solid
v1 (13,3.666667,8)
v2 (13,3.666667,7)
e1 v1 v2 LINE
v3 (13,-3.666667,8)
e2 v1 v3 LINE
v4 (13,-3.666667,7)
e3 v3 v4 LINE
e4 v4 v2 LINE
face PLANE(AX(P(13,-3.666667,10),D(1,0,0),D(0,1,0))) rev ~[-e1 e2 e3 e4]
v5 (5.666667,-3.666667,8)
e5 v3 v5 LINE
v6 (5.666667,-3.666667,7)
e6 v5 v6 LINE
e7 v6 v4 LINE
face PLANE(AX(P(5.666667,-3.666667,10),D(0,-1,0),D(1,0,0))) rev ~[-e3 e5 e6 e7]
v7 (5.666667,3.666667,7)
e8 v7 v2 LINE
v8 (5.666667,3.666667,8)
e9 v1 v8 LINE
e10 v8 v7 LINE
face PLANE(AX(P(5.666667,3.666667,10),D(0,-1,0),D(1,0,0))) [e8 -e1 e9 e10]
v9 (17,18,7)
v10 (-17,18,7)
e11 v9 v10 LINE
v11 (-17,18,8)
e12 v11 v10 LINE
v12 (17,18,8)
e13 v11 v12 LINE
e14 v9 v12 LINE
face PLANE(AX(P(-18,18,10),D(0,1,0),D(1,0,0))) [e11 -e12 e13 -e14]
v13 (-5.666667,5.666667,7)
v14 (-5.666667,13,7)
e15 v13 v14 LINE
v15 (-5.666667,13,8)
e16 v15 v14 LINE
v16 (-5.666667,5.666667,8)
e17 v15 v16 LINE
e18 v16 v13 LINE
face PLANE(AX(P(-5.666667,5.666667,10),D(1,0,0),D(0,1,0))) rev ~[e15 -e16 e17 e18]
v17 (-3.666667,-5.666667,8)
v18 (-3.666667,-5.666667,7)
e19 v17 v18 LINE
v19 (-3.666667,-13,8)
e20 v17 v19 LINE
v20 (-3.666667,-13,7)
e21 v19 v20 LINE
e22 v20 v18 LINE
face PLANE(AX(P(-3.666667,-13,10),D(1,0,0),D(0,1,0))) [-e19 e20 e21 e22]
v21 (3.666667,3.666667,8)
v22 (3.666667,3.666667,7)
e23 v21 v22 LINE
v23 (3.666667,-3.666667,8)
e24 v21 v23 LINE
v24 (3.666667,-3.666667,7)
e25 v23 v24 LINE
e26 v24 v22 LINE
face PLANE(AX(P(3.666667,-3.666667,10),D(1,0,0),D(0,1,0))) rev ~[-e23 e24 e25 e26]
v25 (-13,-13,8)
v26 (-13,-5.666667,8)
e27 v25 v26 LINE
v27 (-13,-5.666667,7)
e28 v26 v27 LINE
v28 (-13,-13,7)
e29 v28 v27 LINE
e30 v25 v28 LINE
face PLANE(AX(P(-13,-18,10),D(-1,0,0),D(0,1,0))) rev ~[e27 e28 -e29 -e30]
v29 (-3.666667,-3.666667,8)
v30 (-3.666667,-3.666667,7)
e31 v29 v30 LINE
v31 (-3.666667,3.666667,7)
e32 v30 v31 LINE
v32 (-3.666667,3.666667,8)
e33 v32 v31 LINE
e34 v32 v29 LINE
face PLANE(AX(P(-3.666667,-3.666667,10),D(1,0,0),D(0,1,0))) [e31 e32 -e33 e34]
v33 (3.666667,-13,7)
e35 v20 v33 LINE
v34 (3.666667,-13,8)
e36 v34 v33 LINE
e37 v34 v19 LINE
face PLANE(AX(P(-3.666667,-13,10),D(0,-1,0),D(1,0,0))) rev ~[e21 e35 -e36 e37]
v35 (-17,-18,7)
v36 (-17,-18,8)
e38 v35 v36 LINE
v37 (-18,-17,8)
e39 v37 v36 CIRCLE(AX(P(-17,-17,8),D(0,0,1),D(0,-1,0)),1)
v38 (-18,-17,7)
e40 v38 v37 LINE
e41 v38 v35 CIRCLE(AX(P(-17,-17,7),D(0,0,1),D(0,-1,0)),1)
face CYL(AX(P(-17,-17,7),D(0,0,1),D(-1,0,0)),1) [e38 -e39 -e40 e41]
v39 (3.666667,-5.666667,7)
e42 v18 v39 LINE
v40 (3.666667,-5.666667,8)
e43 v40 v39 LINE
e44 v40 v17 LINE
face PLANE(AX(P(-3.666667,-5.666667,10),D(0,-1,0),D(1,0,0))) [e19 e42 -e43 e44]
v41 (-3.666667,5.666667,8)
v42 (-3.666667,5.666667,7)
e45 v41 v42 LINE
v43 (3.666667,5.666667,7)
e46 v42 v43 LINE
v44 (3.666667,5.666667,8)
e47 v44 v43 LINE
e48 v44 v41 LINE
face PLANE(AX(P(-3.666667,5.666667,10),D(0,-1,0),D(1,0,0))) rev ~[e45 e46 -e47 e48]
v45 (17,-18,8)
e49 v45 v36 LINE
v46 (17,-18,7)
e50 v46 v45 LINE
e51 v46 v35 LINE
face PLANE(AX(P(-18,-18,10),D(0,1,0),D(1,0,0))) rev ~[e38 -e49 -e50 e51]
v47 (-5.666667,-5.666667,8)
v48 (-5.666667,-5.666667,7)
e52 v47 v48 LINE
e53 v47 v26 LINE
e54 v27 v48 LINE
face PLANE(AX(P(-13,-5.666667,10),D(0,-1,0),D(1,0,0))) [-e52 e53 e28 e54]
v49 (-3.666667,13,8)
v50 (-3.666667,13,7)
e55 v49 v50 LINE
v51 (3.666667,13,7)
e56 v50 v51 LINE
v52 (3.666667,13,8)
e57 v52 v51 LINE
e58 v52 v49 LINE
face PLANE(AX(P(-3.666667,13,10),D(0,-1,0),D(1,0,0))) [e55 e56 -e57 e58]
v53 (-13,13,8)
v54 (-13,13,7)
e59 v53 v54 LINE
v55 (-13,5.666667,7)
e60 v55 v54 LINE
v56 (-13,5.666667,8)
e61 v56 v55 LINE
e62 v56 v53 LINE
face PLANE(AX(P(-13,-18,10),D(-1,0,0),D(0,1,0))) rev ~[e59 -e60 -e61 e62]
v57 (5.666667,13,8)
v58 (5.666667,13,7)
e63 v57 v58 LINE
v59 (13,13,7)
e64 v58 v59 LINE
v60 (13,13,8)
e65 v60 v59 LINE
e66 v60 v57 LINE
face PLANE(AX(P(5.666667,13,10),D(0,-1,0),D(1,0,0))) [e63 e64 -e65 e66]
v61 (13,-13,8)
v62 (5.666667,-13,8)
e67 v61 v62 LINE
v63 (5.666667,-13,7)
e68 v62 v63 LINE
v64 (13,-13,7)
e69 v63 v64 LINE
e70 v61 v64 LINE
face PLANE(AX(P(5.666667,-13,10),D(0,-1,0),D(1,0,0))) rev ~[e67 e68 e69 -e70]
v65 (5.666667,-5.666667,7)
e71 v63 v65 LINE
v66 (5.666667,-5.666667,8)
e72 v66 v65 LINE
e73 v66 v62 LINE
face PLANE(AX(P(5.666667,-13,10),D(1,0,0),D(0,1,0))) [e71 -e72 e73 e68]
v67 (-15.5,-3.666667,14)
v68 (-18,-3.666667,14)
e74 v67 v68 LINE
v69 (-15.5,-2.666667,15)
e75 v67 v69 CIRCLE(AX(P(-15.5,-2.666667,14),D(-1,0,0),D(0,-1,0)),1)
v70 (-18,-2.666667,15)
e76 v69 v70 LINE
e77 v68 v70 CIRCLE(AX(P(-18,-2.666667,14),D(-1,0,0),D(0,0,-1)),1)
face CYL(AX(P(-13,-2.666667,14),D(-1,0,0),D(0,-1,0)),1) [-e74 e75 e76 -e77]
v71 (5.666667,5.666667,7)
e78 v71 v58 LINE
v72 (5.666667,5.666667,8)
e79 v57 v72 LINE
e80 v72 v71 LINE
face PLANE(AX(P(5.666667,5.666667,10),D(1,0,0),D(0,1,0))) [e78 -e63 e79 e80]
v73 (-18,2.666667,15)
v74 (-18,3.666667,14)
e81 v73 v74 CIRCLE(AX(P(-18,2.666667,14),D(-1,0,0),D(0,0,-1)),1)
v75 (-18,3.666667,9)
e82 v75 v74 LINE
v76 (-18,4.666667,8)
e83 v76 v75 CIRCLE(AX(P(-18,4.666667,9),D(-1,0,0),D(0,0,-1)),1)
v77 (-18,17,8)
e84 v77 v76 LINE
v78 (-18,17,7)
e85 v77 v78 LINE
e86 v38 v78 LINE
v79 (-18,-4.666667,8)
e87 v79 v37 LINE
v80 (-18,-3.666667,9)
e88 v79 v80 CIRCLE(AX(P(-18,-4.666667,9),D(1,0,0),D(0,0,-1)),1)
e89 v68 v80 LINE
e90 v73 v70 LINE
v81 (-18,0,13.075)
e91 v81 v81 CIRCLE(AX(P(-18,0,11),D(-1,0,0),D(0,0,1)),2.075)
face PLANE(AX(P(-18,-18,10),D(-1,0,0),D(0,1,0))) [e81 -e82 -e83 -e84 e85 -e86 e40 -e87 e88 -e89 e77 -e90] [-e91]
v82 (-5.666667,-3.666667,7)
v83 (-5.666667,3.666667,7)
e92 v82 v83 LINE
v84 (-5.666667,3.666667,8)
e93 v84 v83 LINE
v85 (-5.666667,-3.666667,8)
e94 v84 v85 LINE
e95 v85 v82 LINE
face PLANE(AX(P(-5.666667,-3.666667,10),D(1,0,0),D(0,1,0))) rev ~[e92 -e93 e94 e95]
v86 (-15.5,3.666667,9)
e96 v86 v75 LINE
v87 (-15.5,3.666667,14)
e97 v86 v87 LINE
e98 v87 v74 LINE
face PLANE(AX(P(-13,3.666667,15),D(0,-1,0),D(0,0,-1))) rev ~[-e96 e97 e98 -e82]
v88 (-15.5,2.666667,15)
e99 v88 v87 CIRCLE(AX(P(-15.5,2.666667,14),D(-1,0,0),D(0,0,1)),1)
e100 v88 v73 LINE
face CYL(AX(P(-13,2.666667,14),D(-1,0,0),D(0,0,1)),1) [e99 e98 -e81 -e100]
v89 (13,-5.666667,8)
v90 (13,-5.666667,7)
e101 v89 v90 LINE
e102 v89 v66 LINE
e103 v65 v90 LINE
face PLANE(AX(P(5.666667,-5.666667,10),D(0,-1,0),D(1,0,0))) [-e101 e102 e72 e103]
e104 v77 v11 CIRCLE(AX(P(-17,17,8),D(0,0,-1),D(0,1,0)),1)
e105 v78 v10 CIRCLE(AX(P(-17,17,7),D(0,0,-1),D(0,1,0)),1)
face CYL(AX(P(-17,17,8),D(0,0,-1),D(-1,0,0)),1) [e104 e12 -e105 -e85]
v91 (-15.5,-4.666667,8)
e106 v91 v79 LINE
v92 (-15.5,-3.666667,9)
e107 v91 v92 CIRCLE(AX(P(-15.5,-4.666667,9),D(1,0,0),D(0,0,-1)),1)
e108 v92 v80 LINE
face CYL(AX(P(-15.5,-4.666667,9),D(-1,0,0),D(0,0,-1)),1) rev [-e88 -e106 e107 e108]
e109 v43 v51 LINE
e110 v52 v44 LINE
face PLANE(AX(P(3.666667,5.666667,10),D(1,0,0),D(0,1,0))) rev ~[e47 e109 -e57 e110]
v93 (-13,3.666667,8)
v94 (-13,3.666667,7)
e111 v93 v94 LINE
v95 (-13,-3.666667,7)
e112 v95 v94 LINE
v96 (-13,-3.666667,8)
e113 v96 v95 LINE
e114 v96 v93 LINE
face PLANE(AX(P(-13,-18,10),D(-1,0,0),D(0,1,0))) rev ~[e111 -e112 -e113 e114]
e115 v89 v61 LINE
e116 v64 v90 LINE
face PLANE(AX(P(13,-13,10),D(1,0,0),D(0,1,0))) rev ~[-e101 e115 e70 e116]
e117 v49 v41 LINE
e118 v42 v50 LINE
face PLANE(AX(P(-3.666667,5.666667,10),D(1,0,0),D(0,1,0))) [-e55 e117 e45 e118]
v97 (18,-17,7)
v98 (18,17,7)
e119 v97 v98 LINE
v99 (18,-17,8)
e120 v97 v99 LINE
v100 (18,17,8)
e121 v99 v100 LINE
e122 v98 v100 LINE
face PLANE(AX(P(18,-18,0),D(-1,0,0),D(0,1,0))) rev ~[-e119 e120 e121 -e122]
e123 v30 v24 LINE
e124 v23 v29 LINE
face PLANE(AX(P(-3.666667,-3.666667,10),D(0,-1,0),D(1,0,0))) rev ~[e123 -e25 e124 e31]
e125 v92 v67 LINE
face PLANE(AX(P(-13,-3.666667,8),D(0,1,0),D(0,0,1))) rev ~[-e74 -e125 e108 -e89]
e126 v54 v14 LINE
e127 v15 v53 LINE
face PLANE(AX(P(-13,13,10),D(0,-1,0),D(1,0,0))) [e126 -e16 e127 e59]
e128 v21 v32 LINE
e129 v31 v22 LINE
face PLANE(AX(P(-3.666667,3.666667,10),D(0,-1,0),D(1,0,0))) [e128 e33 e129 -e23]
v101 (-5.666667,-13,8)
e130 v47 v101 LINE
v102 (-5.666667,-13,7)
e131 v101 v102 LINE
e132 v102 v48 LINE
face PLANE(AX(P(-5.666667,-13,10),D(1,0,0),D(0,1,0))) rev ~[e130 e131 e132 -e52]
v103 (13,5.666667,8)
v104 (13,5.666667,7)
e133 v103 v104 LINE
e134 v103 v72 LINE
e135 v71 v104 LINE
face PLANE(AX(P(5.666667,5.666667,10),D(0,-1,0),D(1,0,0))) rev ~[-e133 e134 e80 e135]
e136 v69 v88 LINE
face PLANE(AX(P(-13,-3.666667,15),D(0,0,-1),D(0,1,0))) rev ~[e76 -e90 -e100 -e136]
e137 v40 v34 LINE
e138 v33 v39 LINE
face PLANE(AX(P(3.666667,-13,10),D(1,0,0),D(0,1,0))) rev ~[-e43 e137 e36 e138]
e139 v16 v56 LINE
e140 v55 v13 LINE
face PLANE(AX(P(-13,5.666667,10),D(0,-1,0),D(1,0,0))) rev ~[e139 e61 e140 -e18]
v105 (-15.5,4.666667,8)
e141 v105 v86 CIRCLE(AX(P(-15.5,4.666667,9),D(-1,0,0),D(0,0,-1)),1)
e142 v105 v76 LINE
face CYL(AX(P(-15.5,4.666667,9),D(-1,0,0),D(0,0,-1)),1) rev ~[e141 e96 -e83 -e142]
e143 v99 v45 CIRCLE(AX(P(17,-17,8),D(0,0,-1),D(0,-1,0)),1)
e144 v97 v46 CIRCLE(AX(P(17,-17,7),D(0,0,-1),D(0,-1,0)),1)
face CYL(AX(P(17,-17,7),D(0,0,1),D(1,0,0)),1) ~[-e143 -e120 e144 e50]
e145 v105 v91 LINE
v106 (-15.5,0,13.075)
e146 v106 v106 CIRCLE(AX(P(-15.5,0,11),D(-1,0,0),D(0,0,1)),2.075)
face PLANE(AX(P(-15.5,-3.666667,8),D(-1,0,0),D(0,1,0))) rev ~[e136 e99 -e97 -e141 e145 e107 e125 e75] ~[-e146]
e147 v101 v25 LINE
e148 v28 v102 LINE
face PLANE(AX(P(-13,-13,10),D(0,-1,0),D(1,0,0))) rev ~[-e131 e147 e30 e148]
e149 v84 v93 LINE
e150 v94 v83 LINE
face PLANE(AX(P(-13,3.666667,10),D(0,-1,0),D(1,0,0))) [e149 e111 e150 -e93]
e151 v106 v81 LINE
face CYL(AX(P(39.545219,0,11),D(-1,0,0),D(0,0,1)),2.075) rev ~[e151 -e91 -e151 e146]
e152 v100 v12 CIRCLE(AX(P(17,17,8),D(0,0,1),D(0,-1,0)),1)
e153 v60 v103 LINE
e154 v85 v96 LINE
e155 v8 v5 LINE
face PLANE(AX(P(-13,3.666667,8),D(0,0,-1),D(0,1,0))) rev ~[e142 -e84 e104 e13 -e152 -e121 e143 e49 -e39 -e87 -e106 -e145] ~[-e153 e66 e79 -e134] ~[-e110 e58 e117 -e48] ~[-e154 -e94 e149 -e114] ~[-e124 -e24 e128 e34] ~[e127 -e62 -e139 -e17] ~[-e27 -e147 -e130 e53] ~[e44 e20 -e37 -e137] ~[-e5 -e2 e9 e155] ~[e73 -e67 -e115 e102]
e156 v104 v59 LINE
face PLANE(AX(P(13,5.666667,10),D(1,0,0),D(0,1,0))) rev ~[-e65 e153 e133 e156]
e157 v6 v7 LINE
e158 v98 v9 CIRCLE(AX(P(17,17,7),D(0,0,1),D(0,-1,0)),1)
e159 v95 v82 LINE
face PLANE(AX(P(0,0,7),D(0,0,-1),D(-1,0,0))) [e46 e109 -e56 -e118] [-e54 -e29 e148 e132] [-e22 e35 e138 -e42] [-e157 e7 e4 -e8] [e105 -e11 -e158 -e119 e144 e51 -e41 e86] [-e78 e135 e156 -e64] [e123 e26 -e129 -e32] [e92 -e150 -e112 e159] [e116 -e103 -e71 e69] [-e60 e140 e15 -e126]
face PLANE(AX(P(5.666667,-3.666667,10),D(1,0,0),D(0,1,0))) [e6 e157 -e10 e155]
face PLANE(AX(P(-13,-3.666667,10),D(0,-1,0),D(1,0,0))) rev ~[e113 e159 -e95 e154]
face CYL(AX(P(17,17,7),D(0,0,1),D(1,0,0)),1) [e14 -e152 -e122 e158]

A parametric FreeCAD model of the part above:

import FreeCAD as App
import Part
import Sketcher

V = App.Vector
Q = App.Units.Quantity


def edges_at(feature, points):
    """Names of the edges that pass closest to the given points."""
    edges = feature.Shape.Edges
    near = lambda p: min(range(len(edges)), key=lambda i: edges[i].distToShape(Part.Vertex(*p))[0])
    return sorted({f"Edge{near(p) + 1}" for p in points})


def add_polygon(sketch, points):
    """Adds a closed chain of lines whose ends are joined by coincident constraints."""
    first, n = sketch.GeometryCount, len(points)
    for a, b in zip(points, points[1:] + points[:1]):
        sketch.addGeometry(Part.LineSegment(App.Vector(*a, 0), App.Vector(*b, 0)), False)
    for i in range(n):
        sketch.addConstraint(Sketcher.Constraint("Coincident", first + i, 2, first + (i + 1) % n, 1))

doc = App.newDocument("Part")
params = doc.addObject("Spreadsheet::Sheet", "Params")
for row, (alias, value) in enumerate([
    ("sketch1_width", "36 mm"),
    ("pad1_length", "10 mm"),
    ("sketch3_width", "36 mm"),
    ("pocket2_length", "7 mm"),
    ("pocket3_length", "2 mm"),
    ("sketch5_width", "5 mm"),
    ("sketch5_height", "36 mm"),
    ("pad2_length", "10 mm"),
    ("sketch6_diameter", "4.15 mm"),
    ("hole_diameter", "4.15 mm"),
    ("sketch7_width", "36 mm"),
    ("sketch7_height", "7 mm"),
    ("sketch7_height2", "12 mm"),
    ("fillet_radius", "1 mm"),
    ("sketch8_width", "2.5 mm"),
    ("pocket5_length", "7 mm"),
    ("fillet2_radius", "1 mm"),
], start=1):
    params.set(f"A{row}", alias)
    params.set(f"B{row}", "=" + value)
    params.setAlias(f"B{row}", alias)

body = doc.addObject("PartDesign::Body", "Body")

sketch1 = body.newObject("Sketcher::SketchObject", "Sketch")
sketch1.AttachmentSupport = (doc.getObject("XY_Plane"), [""])
sketch1.MapMode = "FlatFace"
add_polygon(sketch1, [(-18, 18), (-18, -18), (18, -18), (18, 18)])
sketch1.addConstraint([
    Sketcher.Constraint("Vertical", 0),
    Sketcher.Constraint("Horizontal", 1),
    Sketcher.Constraint("Vertical", 2),
    Sketcher.Constraint("Horizontal", 3),
    Sketcher.Constraint("Symmetric", 0, 2, 2, 2, -1, 1),
    Sketcher.Constraint("Equal", 3, 0),
    Sketcher.Constraint("DistanceX", 1, 1, 1, 2, Q("36 mm")),
])
sketch1.setExpression("Constraints[10]", "Params.sketch1_width")
pad1 = body.newObject("PartDesign::Pad", "Pad")
pad1.Profile = sketch1
pad1.setExpression("Length", "Params.pad1_length")

sketch2 = body.newObject("Sketcher::SketchObject", "Sketch001")
sketch2.AttachmentSupport = (doc.getObject("XY_Plane"), [""])
sketch2.MapMode = "FlatFace"
sketch2.AttachmentOffset = App.Placement(V(0, 0, 10), App.Rotation())
add_polygon(sketch2, [(-13, 13), (-13, 5.666667), (-5.666667, 5.666667), (-5.666667, 13)])
add_polygon(sketch2, [(-13, 3.666667), (-13, -3.666667), (-5.666667, -3.666667), (-5.666667, 3.666667)])
add_polygon(sketch2, [(-3.666667, 13), (-3.666667, 5.666667), (3.666667, 5.666667), (3.666667, 13)])
add_polygon(sketch2, [(-3.666667, 3.666667), (-3.666667, -3.666667), (3.666667, -3.666667), (3.666667, 3.666667)])
add_polygon(sketch2, [(5.666667, 13), (5.666667, 5.666667), (13, 5.666667), (13, 13)])
add_polygon(sketch2, [(5.666667, 3.666667), (5.666667, -3.666667), (13, -3.666667), (13, 3.666667)])
add_polygon(sketch2, [(5.666667, -5.666667), (5.666667, -13), (13, -13), (13, -5.666667)])
add_polygon(sketch2, [(-3.666667, -5.666667), (-3.666667, -13), (3.666667, -13), (3.666667, -5.666667)])
add_polygon(sketch2, [(-13, -5.666667), (-13, -13), (-5.666667, -13), (-5.666667, -5.666667)])
sketch2.addConstraint([
    Sketcher.Constraint("Vertical", 0),
    Sketcher.Constraint("Horizontal", 1),
    Sketcher.Constraint("Vertical", 2),
    Sketcher.Constraint("Horizontal", 3),
    Sketcher.Constraint("Vertical", 4),
    Sketcher.Constraint("Horizontal", 5),
    Sketcher.Constraint("Vertical", 6),
    Sketcher.Constraint("Horizontal", 7),
    Sketcher.Constraint("Vertical", 8),
    Sketcher.Constraint("Horizontal", 9),
    Sketcher.Constraint("Vertical", 10),
    Sketcher.Constraint("Horizontal", 11),
    Sketcher.Constraint("Vertical", 12),
    Sketcher.Constraint("Horizontal", 13),
    Sketcher.Constraint("Vertical", 14),
    Sketcher.Constraint("Horizontal", 15),
    Sketcher.Constraint("Vertical", 16),
    Sketcher.Constraint("Horizontal", 17),
    Sketcher.Constraint("Vertical", 18),
    Sketcher.Constraint("Horizontal", 19),
    Sketcher.Constraint("Vertical", 20),
    Sketcher.Constraint("Horizontal", 21),
    Sketcher.Constraint("Vertical", 22),
    Sketcher.Constraint("Horizontal", 23),
    Sketcher.Constraint("Vertical", 24),
    Sketcher.Constraint("Horizontal", 25),
    Sketcher.Constraint("Vertical", 26),
    Sketcher.Constraint("Horizontal", 27),
    Sketcher.Constraint("Vertical", 28),
    Sketcher.Constraint("Horizontal", 29),
    Sketcher.Constraint("Vertical", 30),
    Sketcher.Constraint("Horizontal", 31),
    Sketcher.Constraint("Vertical", 32),
    Sketcher.Constraint("Horizontal", 33),
    Sketcher.Constraint("Vertical", 34),
    Sketcher.Constraint("Horizontal", 35),
    Sketcher.Constraint("Symmetric", 12, 2, 14, 2, -1, 1),
    Sketcher.Constraint("Symmetric", 6, 2, 20, 2, -1, 1),
    Sketcher.Constraint("Symmetric", 4, 2, 22, 2, -1, 1),
    Sketcher.Constraint("Symmetric", 2, 2, 24, 2, -1, 1),
    Sketcher.Constraint("Symmetric", 0, 2, 26, 2, -1, 1),
    Sketcher.Constraint("Symmetric", 10, 2, 28, 2, -1, 1),
    Sketcher.Constraint("Symmetric", 8, 2, 30, 2, -1, 1),
    Sketcher.Constraint("Symmetric", 18, 2, 32, 2, -1, 1),
    Sketcher.Constraint("Symmetric", 16, 2, 34, 2, -1, 1),
    Sketcher.Constraint("Symmetric", 1, 2, 16, 2, -2),
    Sketcher.Constraint("Symmetric", 3, 2, 18, 2, -2),
    Sketcher.Constraint("Horizontal", 1, 2, 8, 2),
    Sketcher.Constraint("Horizontal", 3, 2, 10, 2),
    Sketcher.Constraint("Horizontal", 5, 2, 12, 2),
    Sketcher.Constraint("Horizontal", 7, 2, 14, 2),
    Sketcher.Constraint("Vertical", 3, 2, 4, 2),
    Sketcher.Constraint("Vertical", 2, 2, 5, 2),
    Sketcher.Constraint("Vertical", 11, 2, 12, 2),
    Sketcher.Constraint("Vertical", 10, 2, 13, 2),
    Sketcher.Constraint("Equal", 7, 9),
    Sketcher.Constraint("Equal", 35, 0),
    Sketcher.Constraint("Equal", 2, 4),
    Sketcher.Constraint("DistanceX", 0, 2, -1, 1, Q("13 mm")),
    Sketcher.Constraint("DistanceY", -1, 1, 2, 2, Q("13 mm")),
    Sketcher.Constraint("DistanceY", 6, 2, 1, 2, Q("2 mm")),
])
pocket1 = body.newObject("PartDesign::Pocket", "Pocket")
pocket1.Profile = sketch2
pocket1.Type = "ThroughAll"

sketch3 = body.newObject("Sketcher::SketchObject", "Sketch002")
sketch3.AttachmentSupport = (doc.getObject("XY_Plane"), [""])
sketch3.MapMode = "FlatFace"
add_polygon(sketch3, [(18, 18), (18, -18), (-18, -18), (-18, 18)])
sketch3.addConstraint([
    Sketcher.Constraint("Vertical", 0),
    Sketcher.Constraint("Horizontal", 1),
    Sketcher.Constraint("Vertical", 2),
    Sketcher.Constraint("Horizontal", 3),
    Sketcher.Constraint("Symmetric", 0, 2, 2, 2, -1, 1),
    Sketcher.Constraint("Equal", 3, 0),
    Sketcher.Constraint("DistanceX", 1, 2, 1, 1, Q("36 mm")),
])
sketch3.setExpression("Constraints[10]", "Params.sketch3_width")
pocket2 = body.newObject("PartDesign::Pocket", "Pocket001")
pocket2.Profile = sketch3
pocket2.setExpression("Length", "Params.pocket2_length")
pocket2.Reversed = True

sketch4 = body.newObject("Sketcher::SketchObject", "Sketch003")
sketch4.AttachmentSupport = (doc.getObject("XY_Plane"), [""])
sketch4.MapMode = "FlatFace"
sketch4.AttachmentOffset = App.Placement(V(0, 0, 10), App.Rotation())
add_polygon(sketch4, [(-13, 18.133115), (-13, -18), (18.197314, -18), (18.197314, 18.133115)])
sketch4.addConstraint([
    Sketcher.Constraint("Vertical", 0),
    Sketcher.Constraint("Horizontal", 1),
    Sketcher.Constraint("Vertical", 2),
    Sketcher.Constraint("Horizontal", 3),
    Sketcher.Constraint("DistanceX", 0, 2, -1, 1, Q("13 mm")),
    Sketcher.Constraint("DistanceY", 0, 2, -1, 1, Q("18 mm")),
    Sketcher.Constraint("DistanceX", 1, 1, 1, 2, Q("31.197314 mm")),
    Sketcher.Constraint("DistanceY", 0, 2, 0, 1, Q("36.133115 mm")),
])
pocket3 = body.newObject("PartDesign::Pocket", "Pocket002")
pocket3.Profile = sketch4
pocket3.setExpression("Length", "Params.pocket3_length")

sketch5 = body.newObject("Sketcher::SketchObject", "Sketch004")
sketch5.AttachmentSupport = (doc.getObject("XY_Plane"), [""])
sketch5.MapMode = "FlatFace"
sketch5.AttachmentOffset = App.Placement(V(0, 0, 10), App.Rotation())
add_polygon(sketch5, [(-18, 18), (-18, -18), (-13, -18), (-13, 18)])
sketch5.addConstraint([
    Sketcher.Constraint("Vertical", 0),
    Sketcher.Constraint("Horizontal", 1),
    Sketcher.Constraint("Vertical", 2),
    Sketcher.Constraint("Horizontal", 3),
    Sketcher.Constraint("DistanceX", 1, 1, 1, 2, Q("5 mm")),
    Sketcher.Constraint("DistanceY", 0, 2, 0, 1, Q("36 mm")),
    Sketcher.Constraint("DistanceX", 0, 2, -1, 1, Q("18 mm")),
    Sketcher.Constraint("DistanceY", 0, 2, -1, 1, Q("18 mm")),
])
sketch5.setExpression("Constraints[8]", "Params.sketch5_width")
sketch5.setExpression("Constraints[9]", "Params.sketch5_height")
pad2 = body.newObject("PartDesign::Pad", "Pad001")
pad2.Profile = sketch5
pad2.setExpression("Length", "Params.pad2_length")

sketch6 = body.newObject("Sketcher::SketchObject", "Sketch005")
sketch6.AttachmentSupport = (doc.getObject("YZ_Plane"), [""])
sketch6.MapMode = "FlatFace"
sketch6.AttachmentOffset = App.Placement(V(0, 0, -13), App.Rotation())
sketch6.addGeometry(Part.Circle(V(0, 11, 0), V(0, 0, 1), 2.075), False)
sketch6.addConstraint([
    Sketcher.Constraint("PointOnObject", 0, 3, -2),
    Sketcher.Constraint("Diameter", 0, Q("4.15 mm")),
    Sketcher.Constraint("DistanceY", -1, 1, 0, 3, Q("11 mm")),
])
sketch6.setExpression("Constraints[1]", "Params.sketch6_diameter")
doc.recompute()
hole = body.newObject("PartDesign::Hole", "Hole")
hole.Profile = sketch6
hole.ThreadType = "None"
hole.setExpression("Diameter", "Params.hole_diameter")
hole.DepthType = "ThroughAll"

sketch7 = body.newObject("Sketcher::SketchObject", "Sketch006")
sketch7.AttachmentSupport = (doc.getObject("YZ_Plane"), [""])
sketch7.MapMode = "FlatFace"
sketch7.AttachmentOffset = App.Placement(V(0, 0, -13), App.Rotation())
add_polygon(sketch7, [(-18, 8), (-3.666667, 8), (-3.666667, 15), (3.666667, 15), (3.666667, 8), (18, 8), (18, 20), (-18, 20)])
sketch7.addConstraint([
    Sketcher.Constraint("Horizontal", 0),
    Sketcher.Constraint("Vertical", 1),
    Sketcher.Constraint("Horizontal", 2),
    Sketcher.Constraint("Vertical", 3),
    Sketcher.Constraint("Horizontal", 4),
    Sketcher.Constraint("Vertical", 5),
    Sketcher.Constraint("Horizontal", 6),
    Sketcher.Constraint("Vertical", 7),
    Sketcher.Constraint("Symmetric", 0, 2, 3, 2, -2),
    Sketcher.Constraint("Equal", 0, 4),
    Sketcher.Constraint("DistanceX", 6, 2, 6, 1, Q("36 mm")),
    Sketcher.Constraint("DistanceY", 1, 1, 1, 2, Q("7 mm")),
    Sketcher.Constraint("DistanceY", 5, 1, 5, 2, Q("12 mm")),
    Sketcher.Constraint("DistanceY", -1, 1, 0, 2, Q("8 mm")),
    Sketcher.Constraint("DistanceX", 0, 1, 0, 2, Q("14.333333 mm")),
])
sketch7.setExpression("Constraints[18]", "Params.sketch7_width")
sketch7.setExpression("Constraints[19]", "Params.sketch7_height")
sketch7.setExpression("Constraints[20]", "Params.sketch7_height2")
pocket4 = body.newObject("PartDesign::Pocket", "Pocket003")
pocket4.Profile = sketch7
pocket4.Type = "ThroughAll"
doc.recompute()

fillet = body.newObject("PartDesign::Fillet", "Fillet")
fillet.Base = (pocket4, edges_at(pocket4, [
    (18, -18, 7.5),
    (18, 18, 7.5),
    (-18, -18, 7.5),
    (-18, 18, 7.5),
    (-15.5, 3.667, 15),
    (-15.5, -3.667, 15),
]))
fillet.setExpression("Radius", "Params.fillet_radius")

sketch8 = body.newObject("Sketcher::SketchObject", "Sketch007")
sketch8.AttachmentSupport = (doc.getObject("XY_Plane"), [""])
sketch8.MapMode = "FlatFace"
sketch8.AttachmentOffset = App.Placement(V(0, 0, 8), App.Rotation())
add_polygon(sketch8, [(-15.5, 3.666667), (-15.5, -3.666667), (-13, -3.666667), (-13, 3.666667)])
sketch8.addConstraint([
    Sketcher.Constraint("Vertical", 0),
    Sketcher.Constraint("Horizontal", 1),
    Sketcher.Constraint("Vertical", 2),
    Sketcher.Constraint("Horizontal", 3),
    Sketcher.Constraint("DistanceX", 1, 1, 1, 2, Q("2.5 mm")),
    Sketcher.Constraint("DistanceX", 1, 2, -1, 1, Q("13 mm")),
    Sketcher.Constraint("DistanceY", 0, 2, 0, 1, Q("7.333333 mm")),
    Sketcher.Constraint("DistanceY", 0, 2, -1, 1, Q("3.666667 mm")),
])
sketch8.setExpression("Constraints[8]", "Params.sketch8_width")
pocket5 = body.newObject("PartDesign::Pocket", "Pocket004")
pocket5.Profile = sketch8
pocket5.setExpression("Length", "Params.pocket5_length")
pocket5.Reversed = True
doc.recompute()

fillet2 = body.newObject("PartDesign::Fillet", "Fillet001")
fillet2.Base = (pocket5, edges_at(pocket5, [(-16.75, 3.667, 8), (-16.75, -3.667, 8)]))
fillet2.setExpression("Radius", "Params.fillet2_radius")

doc.recompute()
